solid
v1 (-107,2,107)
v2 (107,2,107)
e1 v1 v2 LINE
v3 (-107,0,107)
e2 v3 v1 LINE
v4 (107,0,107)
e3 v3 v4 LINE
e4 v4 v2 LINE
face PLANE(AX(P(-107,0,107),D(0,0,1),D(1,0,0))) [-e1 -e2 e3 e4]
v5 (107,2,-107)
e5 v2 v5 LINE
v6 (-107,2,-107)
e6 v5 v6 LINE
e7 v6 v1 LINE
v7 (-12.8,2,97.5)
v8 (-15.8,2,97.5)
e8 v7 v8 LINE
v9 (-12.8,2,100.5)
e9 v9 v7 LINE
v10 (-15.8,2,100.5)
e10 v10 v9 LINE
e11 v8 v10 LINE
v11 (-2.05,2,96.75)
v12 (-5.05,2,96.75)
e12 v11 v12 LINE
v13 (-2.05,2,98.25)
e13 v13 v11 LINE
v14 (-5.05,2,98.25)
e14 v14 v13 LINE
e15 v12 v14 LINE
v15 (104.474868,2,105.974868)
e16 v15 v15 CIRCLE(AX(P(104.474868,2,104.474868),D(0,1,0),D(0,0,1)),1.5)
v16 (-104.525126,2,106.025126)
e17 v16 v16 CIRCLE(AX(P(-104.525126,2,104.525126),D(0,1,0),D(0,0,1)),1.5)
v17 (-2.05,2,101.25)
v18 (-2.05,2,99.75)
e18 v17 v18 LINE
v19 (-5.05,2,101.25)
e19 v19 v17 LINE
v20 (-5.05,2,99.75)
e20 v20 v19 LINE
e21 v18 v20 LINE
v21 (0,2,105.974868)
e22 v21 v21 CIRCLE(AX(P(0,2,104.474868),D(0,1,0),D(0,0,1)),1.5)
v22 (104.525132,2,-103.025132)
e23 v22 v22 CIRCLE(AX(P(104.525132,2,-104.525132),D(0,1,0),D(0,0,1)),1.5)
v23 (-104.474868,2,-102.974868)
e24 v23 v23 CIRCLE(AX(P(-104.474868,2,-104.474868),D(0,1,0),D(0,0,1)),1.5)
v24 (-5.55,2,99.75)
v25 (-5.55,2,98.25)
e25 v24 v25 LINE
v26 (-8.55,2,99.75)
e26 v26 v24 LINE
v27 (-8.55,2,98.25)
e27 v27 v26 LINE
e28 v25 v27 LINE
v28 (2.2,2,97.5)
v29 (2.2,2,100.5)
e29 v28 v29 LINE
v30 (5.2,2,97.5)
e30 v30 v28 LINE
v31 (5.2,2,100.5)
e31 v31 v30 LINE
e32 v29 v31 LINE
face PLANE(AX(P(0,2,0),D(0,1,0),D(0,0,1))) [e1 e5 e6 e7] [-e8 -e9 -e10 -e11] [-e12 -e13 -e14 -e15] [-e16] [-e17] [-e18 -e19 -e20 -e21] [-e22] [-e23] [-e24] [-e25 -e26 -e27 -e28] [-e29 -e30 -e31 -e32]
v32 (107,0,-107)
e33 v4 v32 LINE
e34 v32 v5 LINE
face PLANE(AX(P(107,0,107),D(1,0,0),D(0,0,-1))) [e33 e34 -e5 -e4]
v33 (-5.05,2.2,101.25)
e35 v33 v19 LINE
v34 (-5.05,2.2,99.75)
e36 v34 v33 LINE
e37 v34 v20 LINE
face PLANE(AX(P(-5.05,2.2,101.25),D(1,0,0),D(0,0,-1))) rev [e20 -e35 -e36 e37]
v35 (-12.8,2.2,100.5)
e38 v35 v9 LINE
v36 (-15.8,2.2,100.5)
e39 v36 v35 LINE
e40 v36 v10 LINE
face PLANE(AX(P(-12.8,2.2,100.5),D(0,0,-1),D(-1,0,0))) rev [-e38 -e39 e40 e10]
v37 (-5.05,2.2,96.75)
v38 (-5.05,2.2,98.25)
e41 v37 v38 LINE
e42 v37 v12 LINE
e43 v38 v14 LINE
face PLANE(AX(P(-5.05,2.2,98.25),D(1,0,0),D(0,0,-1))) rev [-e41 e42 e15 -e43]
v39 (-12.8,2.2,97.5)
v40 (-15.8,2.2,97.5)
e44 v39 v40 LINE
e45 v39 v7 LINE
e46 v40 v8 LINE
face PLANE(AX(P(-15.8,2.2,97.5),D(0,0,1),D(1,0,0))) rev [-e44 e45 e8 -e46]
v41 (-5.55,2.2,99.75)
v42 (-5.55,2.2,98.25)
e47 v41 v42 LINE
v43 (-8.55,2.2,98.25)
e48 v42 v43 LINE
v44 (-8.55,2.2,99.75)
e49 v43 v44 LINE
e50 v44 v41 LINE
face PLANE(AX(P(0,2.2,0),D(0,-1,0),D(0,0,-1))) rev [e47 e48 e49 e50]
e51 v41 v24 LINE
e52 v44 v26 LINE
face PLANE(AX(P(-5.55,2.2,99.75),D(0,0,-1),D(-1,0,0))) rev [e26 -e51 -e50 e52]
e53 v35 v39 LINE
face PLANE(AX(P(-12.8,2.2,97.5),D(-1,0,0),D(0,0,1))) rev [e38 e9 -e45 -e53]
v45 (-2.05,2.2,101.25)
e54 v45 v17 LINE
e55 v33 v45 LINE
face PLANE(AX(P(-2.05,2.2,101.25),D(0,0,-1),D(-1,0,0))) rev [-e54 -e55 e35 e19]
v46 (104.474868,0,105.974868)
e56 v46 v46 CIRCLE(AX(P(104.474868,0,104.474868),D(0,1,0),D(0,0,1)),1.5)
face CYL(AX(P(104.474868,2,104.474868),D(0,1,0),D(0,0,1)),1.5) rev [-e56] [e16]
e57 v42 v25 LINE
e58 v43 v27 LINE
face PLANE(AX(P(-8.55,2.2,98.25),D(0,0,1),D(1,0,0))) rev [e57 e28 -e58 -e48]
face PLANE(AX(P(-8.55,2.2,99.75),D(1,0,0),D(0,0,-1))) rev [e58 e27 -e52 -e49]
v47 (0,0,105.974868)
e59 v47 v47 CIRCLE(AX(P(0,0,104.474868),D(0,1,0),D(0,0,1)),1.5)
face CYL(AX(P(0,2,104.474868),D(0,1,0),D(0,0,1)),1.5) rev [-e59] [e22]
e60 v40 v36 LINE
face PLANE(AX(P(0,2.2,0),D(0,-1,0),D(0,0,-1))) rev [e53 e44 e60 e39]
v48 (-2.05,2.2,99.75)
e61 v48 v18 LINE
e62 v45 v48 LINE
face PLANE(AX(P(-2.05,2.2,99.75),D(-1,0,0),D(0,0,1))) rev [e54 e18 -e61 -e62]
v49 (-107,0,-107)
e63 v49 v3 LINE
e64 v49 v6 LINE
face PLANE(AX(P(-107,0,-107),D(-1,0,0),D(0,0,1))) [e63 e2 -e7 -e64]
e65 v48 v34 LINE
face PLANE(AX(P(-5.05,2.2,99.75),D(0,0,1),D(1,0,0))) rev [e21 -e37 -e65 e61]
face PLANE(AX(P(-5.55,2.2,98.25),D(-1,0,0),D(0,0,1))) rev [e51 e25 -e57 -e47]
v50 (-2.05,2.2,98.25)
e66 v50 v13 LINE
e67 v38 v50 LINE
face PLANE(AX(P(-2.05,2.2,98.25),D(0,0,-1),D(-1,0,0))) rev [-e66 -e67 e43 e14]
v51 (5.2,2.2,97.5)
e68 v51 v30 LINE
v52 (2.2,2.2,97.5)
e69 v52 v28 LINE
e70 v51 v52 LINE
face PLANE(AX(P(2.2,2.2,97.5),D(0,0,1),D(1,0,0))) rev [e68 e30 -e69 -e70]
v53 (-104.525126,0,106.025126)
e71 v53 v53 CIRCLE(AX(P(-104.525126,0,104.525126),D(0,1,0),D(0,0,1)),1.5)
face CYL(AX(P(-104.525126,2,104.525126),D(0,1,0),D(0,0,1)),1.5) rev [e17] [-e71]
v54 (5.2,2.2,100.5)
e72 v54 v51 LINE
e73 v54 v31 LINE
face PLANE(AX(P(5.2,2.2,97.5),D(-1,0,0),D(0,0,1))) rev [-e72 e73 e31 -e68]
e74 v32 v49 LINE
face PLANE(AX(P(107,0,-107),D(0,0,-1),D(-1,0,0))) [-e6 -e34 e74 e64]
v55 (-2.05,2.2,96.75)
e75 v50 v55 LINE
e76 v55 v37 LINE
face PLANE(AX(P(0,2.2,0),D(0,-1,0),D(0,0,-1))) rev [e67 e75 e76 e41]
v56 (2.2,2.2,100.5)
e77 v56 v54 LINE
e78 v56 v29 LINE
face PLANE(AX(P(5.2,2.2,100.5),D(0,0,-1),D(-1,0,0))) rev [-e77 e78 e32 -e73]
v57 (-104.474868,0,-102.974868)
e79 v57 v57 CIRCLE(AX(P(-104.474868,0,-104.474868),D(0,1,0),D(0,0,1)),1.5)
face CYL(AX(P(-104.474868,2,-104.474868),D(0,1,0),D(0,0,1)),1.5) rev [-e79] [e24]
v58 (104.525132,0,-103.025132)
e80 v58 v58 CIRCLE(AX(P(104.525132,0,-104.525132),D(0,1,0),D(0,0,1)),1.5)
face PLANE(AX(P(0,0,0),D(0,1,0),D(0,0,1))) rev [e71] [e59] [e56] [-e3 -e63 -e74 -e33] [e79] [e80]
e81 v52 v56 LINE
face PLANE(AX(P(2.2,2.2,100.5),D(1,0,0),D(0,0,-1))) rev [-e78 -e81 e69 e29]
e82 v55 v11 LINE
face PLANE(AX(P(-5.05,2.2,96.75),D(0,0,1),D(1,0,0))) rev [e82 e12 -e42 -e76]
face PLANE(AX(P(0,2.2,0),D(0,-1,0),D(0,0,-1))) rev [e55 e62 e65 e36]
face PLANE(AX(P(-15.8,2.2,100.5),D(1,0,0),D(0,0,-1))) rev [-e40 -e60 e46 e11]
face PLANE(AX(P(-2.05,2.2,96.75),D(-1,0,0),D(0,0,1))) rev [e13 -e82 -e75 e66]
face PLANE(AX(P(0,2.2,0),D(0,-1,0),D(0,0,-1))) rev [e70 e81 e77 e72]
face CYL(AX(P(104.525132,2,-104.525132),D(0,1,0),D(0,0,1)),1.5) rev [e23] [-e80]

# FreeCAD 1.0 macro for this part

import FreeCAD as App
import Part
import Sketcher

doc = App.newDocument("Part")
params = doc.addObject("Spreadsheet::Sheet", "Params")
for row, (alias, value) in enumerate([
    ("sketch1_width", "214 mm"),
    ("pad1_length", "2 mm"),
    ("sketch2_width", "3 mm"),
    ("pad2_length", "0.2 mm"),
    ("sketch3_width", "3 mm"),
    ("pad3_length", "0.2 mm"),
    ("sketch4_width", "3 mm"),
    ("sketch4_height", "1.5 mm"),
    ("pad4_length", "0.2 mm"),
    ("sketch5_width", "3 mm"),
    ("sketch5_height", "1.5 mm"),
    ("pad5_length", "0.2 mm"),
    ("sketch6_width", "3 mm"),
    ("sketch6_height", "1.5 mm"),
    ("pad6_length", "0.2 mm"),
    ("sketch7_diameter", "3 mm"),
    ("hole_diameter", "3 mm"),
], start=1):
    params.set(f"A{row}", alias)
    params.set(f"B{row}", "=" + value)
    params.setAlias(f"B{row}", alias)

body = doc.addObject("PartDesign::Body", "Body")

sketch1 = body.newObject("Sketcher::SketchObject", "Sketch")
sketch1.AttachmentSupport = (doc.getObject("XZ_Plane"), [""])
sketch1.MapMode = "FlatFace"
sketch1.AttachmentOffset = App.Placement(App.Vector(0, 0, -2), App.Rotation())
sketch1.addGeometry([
    Part.LineSegment(App.Vector(-107, -107, 0), App.Vector(-107, 107, 0)),
    Part.LineSegment(App.Vector(-107, 107, 0), App.Vector(107, 107, 0)),
    Part.LineSegment(App.Vector(107, 107, 0), App.Vector(107, -107, 0)),
    Part.LineSegment(App.Vector(107, -107, 0), App.Vector(-107, -107, 0)),
], False)
sketch1.addConstraint([
    Sketcher.Constraint("Coincident", 0, 2, 1, 1),
    Sketcher.Constraint("Coincident", 1, 2, 2, 1),
    Sketcher.Constraint("Coincident", 2, 2, 3, 1),
    Sketcher.Constraint("Coincident", 3, 2, 0, 1),
    Sketcher.Constraint("Vertical", 0),
    Sketcher.Constraint("Horizontal", 1),
    Sketcher.Constraint("Vertical", 2),
    Sketcher.Constraint("Horizontal", 3),
    Sketcher.Constraint("Symmetric", 0, 2, 2, 2, -1, 1),
    Sketcher.Constraint("Equal", 3, 0),
    Sketcher.Constraint("DistanceX", 1, 1, 1, 2, 214.0),
])
sketch1.setExpression("Constraints[10]", "Params.sketch1_width")
pad1 = body.newObject("PartDesign::Pad", "Pad")
pad1.Profile = sketch1
pad1.setExpression("Length", "Params.pad1_length")

sketch2 = body.newObject("Sketcher::SketchObject", "Sketch001")
sketch2.AttachmentSupport = (doc.getObject("XZ_Plane"), [""])
sketch2.MapMode = "FlatFace"
sketch2.AttachmentOffset = App.Placement(App.Vector(0, 0, -2), App.Rotation())
sketch2.addGeometry([
    Part.LineSegment(App.Vector(5.2, 100.5, 0), App.Vector(5.2, 97.5, 0)),
    Part.LineSegment(App.Vector(5.2, 97.5, 0), App.Vector(2.2, 97.5, 0)),
    Part.LineSegment(App.Vector(2.2, 97.5, 0), App.Vector(2.2, 100.5, 0)),
    Part.LineSegment(App.Vector(2.2, 100.5, 0), App.Vector(5.2, 100.5, 0)),
], False)
sketch2.addConstraint([
    Sketcher.Constraint("Coincident", 0, 2, 1, 1),
    Sketcher.Constraint("Coincident", 1, 2, 2, 1),
    Sketcher.Constraint("Coincident", 2, 2, 3, 1),
    Sketcher.Constraint("Coincident", 3, 2, 0, 1),
    Sketcher.Constraint("Vertical", 0),
    Sketcher.Constraint("Horizontal", 1),
    Sketcher.Constraint("Vertical", 2),
    Sketcher.Constraint("Horizontal", 3),
    Sketcher.Constraint("Equal", 3, 0),
    Sketcher.Constraint("DistanceX", 1, 2, 1, 1, 3.0),
    Sketcher.Constraint("DistanceX", -1, 1, 0, 2, 5.2),
    Sketcher.Constraint("DistanceY", -1, 1, 0, 2, 97.5),
])
sketch2.setExpression("Constraints[9]", "Params.sketch2_width")
pad2 = body.newObject("PartDesign::Pad", "Pad001")
pad2.Profile = sketch2
pad2.setExpression("Length", "Params.pad2_length")
pad2.Reversed = True

sketch3 = body.newObject("Sketcher::SketchObject", "Sketch002")
sketch3.AttachmentSupport = (doc.getObject("XZ_Plane"), [""])
sketch3.MapMode = "FlatFace"
sketch3.AttachmentOffset = App.Placement(App.Vector(0, 0, -2), App.Rotation())
sketch3.addGeometry([
    Part.LineSegment(App.Vector(-12.8, 100.5, 0), App.Vector(-12.8, 97.5, 0)),
    Part.LineSegment(App.Vector(-12.8, 97.5, 0), App.Vector(-15.8, 97.5, 0)),
    Part.LineSegment(App.Vector(-15.8, 97.5, 0), App.Vector(-15.8, 100.5, 0)),
    Part.LineSegment(App.Vector(-15.8, 100.5, 0), App.Vector(-12.8, 100.5, 0)),
], False)
sketch3.addConstraint([
    Sketcher.Constraint("Coincident", 0, 2, 1, 1),
    Sketcher.Constraint("Coincident", 1, 2, 2, 1),
    Sketcher.Constraint("Coincident", 2, 2, 3, 1),
    Sketcher.Constraint("Coincident", 3, 2, 0, 1),
    Sketcher.Constraint("Vertical", 0),
    Sketcher.Constraint("Horizontal", 1),
    Sketcher.Constraint("Vertical", 2),
    Sketcher.Constraint("Horizontal", 3),
    Sketcher.Constraint("Equal", 3, 0),
    Sketcher.Constraint("DistanceX", 1, 2, 1, 1, 3.0),
    Sketcher.Constraint("DistanceX", 0, 2, -1, 1, 12.8),
    Sketcher.Constraint("DistanceY", -1, 1, 0, 2, 97.5),
])
sketch3.setExpression("Constraints[9]", "Params.sketch3_width")
pad3 = body.newObject("PartDesign::Pad", "Pad002")
pad3.Profile = sketch3
pad3.setExpression("Length", "Params.pad3_length")
pad3.Reversed = True

sketch4 = body.newObject("Sketcher::SketchObject", "Sketch003")
sketch4.AttachmentSupport = (doc.getObject("XZ_Plane"), [""])
sketch4.MapMode = "FlatFace"
sketch4.AttachmentOffset = App.Placement(App.Vector(0, 0, -2), App.Rotation())
sketch4.addGeometry([
    Part.LineSegment(App.Vector(-5.5, 99.8, 0), App.Vector(-5.5, 98.2, 0)),
    Part.LineSegment(App.Vector(-5.5, 98.2, 0), App.Vector(-8.6, 98.2, 0)),
    Part.LineSegment(App.Vector(-8.6, 98.2, 0), App.Vector(-8.6, 99.8, 0)),
    Part.LineSegment(App.Vector(-8.6, 99.8, 0), App.Vector(-5.5, 99.8, 0)),
], False)
sketch4.addConstraint([
    Sketcher.Constraint("Coincident", 0, 2, 1, 1),
    Sketcher.Constraint("Coincident", 1, 2, 2, 1),
    Sketcher.Constraint("Coincident", 2, 2, 3, 1),
    Sketcher.Constraint("Coincident", 3, 2, 0, 1),
    Sketcher.Constraint("Vertical", 0),
    Sketcher.Constraint("Horizontal", 1),
    Sketcher.Constraint("Vertical", 2),
    Sketcher.Constraint("Horizontal", 3),
    Sketcher.Constraint("DistanceX", 1, 2, 1, 1, 3.0),
    Sketcher.Constraint("DistanceY", 0, 2, 0, 1, 1.5),
    Sketcher.Constraint("DistanceX", 0, 2, -1, 1, 5.55),
    Sketcher.Constraint("DistanceY", -1, 1, 0, 2, 98.25),
])
sketch4.setExpression("Constraints[8]", "Params.sketch4_width")
sketch4.setExpression("Constraints[9]", "Params.sketch4_height")
pad4 = body.newObject("PartDesign::Pad", "Pad003")
pad4.Profile = sketch4
pad4.setExpression("Length", "Params.pad4_length")
pad4.Reversed = True

sketch5 = body.newObject("Sketcher::SketchObject", "Sketch004")
sketch5.AttachmentSupport = (doc.getObject("XZ_Plane"), [""])
sketch5.MapMode = "FlatFace"
sketch5.AttachmentOffset = App.Placement(App.Vector(0, 0, -2), App.Rotation())
sketch5.addGeometry([
    Part.LineSegment(App.Vector(-2, 98.2, 0), App.Vector(-2, 96.8, 0)),
    Part.LineSegment(App.Vector(-2, 96.8, 0), App.Vector(-5, 96.8, 0)),
    Part.LineSegment(App.Vector(-5, 96.8, 0), App.Vector(-5, 98.2, 0)),
    Part.LineSegment(App.Vector(-5, 98.2, 0), App.Vector(-2, 98.2, 0)),
], False)
sketch5.addConstraint([
    Sketcher.Constraint("Coincident", 0, 2, 1, 1),
    Sketcher.Constraint("Coincident", 1, 2, 2, 1),
    Sketcher.Constraint("Coincident", 2, 2, 3, 1),
    Sketcher.Constraint("Coincident", 3, 2, 0, 1),
    Sketcher.Constraint("Vertical", 0),
    Sketcher.Constraint("Horizontal", 1),
    Sketcher.Constraint("Vertical", 2),
    Sketcher.Constraint("Horizontal", 3),
    Sketcher.Constraint("DistanceX", 1, 2, 1, 1, 3.0),
    Sketcher.Constraint("DistanceY", 0, 2, 0, 1, 1.5),
    Sketcher.Constraint("DistanceX", 0, 2, -1, 1, 2.05),
    Sketcher.Constraint("DistanceY", -1, 1, 0, 2, 96.75),
])
sketch5.setExpression("Constraints[8]", "Params.sketch5_width")
sketch5.setExpression("Constraints[9]", "Params.sketch5_height")
pad5 = body.newObject("PartDesign::Pad", "Pad004")
pad5.Profile = sketch5
pad5.setExpression("Length", "Params.pad5_length")
pad5.Reversed = True

sketch6 = body.newObject("Sketcher::SketchObject", "Sketch005")
sketch6.AttachmentSupport = (doc.getObject("XZ_Plane"), [""])
sketch6.MapMode = "FlatFace"
sketch6.AttachmentOffset = App.Placement(App.Vector(0, 0, -2), App.Rotation())
sketch6.addGeometry([
    Part.LineSegment(App.Vector(-2, 101.2, 0), App.Vector(-2, 99.8, 0)),
    Part.LineSegment(App.Vector(-2, 99.8, 0), App.Vector(-5, 99.8, 0)),
    Part.LineSegment(App.Vector(-5, 99.8, 0), App.Vector(-5, 101.2, 0)),
    Part.LineSegment(App.Vector(-5, 101.2, 0), App.Vector(-2, 101.2, 0)),
], False)
sketch6.addConstraint([
    Sketcher.Constraint("Coincident", 0, 2, 1, 1),
    Sketcher.Constraint("Coincident", 1, 2, 2, 1),
    Sketcher.Constraint("Coincident", 2, 2, 3, 1),
    Sketcher.Constraint("Coincident", 3, 2, 0, 1),
    Sketcher.Constraint("Vertical", 0),
    Sketcher.Constraint("Horizontal", 1),
    Sketcher.Constraint("Vertical", 2),
    Sketcher.Constraint("Horizontal", 3),
    Sketcher.Constraint("DistanceX", 1, 2, 1, 1, 3.0),
    Sketcher.Constraint("DistanceY", 0, 2, 0, 1, 1.5),
    Sketcher.Constraint("DistanceX", 0, 2, -1, 1, 2.05),
    Sketcher.Constraint("DistanceY", -1, 1, 0, 2, 99.75),
])
sketch6.setExpression("Constraints[8]", "Params.sketch6_width")
sketch6.setExpression("Constraints[9]", "Params.sketch6_height")
pad6 = body.newObject("PartDesign::Pad", "Pad005")
pad6.Profile = sketch6
pad6.setExpression("Length", "Params.pad6_length")
pad6.Reversed = True

sketch7 = body.newObject("Sketcher::SketchObject", "Sketch006")
sketch7.AttachmentSupport = (doc.getObject("XZ_Plane"), [""])
sketch7.MapMode = "FlatFace"
sketch7.AttachmentOffset = App.Placement(App.Vector(0, 0, -2), App.Rotation())
sketch7.addGeometry([
    Part.Circle(App.Vector(104.5, -104.5, 0), App.Vector(0, 0, 1), 1.5),
    Part.Circle(App.Vector(-104.5, 104.5, 0), App.Vector(0, 0, 1), 1.5),
    Part.Circle(App.Vector(104.5, 104.5, 0), App.Vector(0, 0, 1), 1.5),
    Part.Circle(App.Vector(-104.5, -104.5, 0), App.Vector(0, 0, 1), 1.5),
    Part.Circle(App.Vector(0, 104.5, 0), App.Vector(0, 0, 1), 1.5),
], False)
sketch7.addConstraint([
    Sketcher.Constraint("Equal", 0, 1),
    Sketcher.Constraint("Equal", 1, 2),
    Sketcher.Constraint("Equal", 2, 3),
    Sketcher.Constraint("Equal", 3, 4),
    Sketcher.Constraint("Symmetric", 0, 3, 1, 3, -1, 1),
    Sketcher.Constraint("Symmetric", 2, 3, 3, 3, -1, 1),
    Sketcher.Constraint("PointOnObject", 4, 3, -2),
    Sketcher.Constraint("Horizontal", 2, 3, 4, 3),
    Sketcher.Constraint("Diameter", 0, 3.0),
    Sketcher.Constraint("DistanceY", 0, 3, 2, 3, 209.0),
    Sketcher.Constraint("DistanceX", 3, 3, 0, 3, 209.0),
    Sketcher.Constraint("DistanceX", 1, 3, 0, 3, 209.050259),
    Sketcher.Constraint("DistanceY", 0, 3, 1, 3, 209.050259),
])
sketch7.setExpression("Constraints[8]", "Params.sketch7_diameter")
doc.recompute()
hole = body.newObject("PartDesign::Hole", "Hole")
hole.Profile = sketch7
hole.ThreadType = "None"
hole.setExpression("Diameter", "Params.hole_diameter")
hole.DepthType = "ThroughAll"
hole.Reversed = True

doc.recompute()
